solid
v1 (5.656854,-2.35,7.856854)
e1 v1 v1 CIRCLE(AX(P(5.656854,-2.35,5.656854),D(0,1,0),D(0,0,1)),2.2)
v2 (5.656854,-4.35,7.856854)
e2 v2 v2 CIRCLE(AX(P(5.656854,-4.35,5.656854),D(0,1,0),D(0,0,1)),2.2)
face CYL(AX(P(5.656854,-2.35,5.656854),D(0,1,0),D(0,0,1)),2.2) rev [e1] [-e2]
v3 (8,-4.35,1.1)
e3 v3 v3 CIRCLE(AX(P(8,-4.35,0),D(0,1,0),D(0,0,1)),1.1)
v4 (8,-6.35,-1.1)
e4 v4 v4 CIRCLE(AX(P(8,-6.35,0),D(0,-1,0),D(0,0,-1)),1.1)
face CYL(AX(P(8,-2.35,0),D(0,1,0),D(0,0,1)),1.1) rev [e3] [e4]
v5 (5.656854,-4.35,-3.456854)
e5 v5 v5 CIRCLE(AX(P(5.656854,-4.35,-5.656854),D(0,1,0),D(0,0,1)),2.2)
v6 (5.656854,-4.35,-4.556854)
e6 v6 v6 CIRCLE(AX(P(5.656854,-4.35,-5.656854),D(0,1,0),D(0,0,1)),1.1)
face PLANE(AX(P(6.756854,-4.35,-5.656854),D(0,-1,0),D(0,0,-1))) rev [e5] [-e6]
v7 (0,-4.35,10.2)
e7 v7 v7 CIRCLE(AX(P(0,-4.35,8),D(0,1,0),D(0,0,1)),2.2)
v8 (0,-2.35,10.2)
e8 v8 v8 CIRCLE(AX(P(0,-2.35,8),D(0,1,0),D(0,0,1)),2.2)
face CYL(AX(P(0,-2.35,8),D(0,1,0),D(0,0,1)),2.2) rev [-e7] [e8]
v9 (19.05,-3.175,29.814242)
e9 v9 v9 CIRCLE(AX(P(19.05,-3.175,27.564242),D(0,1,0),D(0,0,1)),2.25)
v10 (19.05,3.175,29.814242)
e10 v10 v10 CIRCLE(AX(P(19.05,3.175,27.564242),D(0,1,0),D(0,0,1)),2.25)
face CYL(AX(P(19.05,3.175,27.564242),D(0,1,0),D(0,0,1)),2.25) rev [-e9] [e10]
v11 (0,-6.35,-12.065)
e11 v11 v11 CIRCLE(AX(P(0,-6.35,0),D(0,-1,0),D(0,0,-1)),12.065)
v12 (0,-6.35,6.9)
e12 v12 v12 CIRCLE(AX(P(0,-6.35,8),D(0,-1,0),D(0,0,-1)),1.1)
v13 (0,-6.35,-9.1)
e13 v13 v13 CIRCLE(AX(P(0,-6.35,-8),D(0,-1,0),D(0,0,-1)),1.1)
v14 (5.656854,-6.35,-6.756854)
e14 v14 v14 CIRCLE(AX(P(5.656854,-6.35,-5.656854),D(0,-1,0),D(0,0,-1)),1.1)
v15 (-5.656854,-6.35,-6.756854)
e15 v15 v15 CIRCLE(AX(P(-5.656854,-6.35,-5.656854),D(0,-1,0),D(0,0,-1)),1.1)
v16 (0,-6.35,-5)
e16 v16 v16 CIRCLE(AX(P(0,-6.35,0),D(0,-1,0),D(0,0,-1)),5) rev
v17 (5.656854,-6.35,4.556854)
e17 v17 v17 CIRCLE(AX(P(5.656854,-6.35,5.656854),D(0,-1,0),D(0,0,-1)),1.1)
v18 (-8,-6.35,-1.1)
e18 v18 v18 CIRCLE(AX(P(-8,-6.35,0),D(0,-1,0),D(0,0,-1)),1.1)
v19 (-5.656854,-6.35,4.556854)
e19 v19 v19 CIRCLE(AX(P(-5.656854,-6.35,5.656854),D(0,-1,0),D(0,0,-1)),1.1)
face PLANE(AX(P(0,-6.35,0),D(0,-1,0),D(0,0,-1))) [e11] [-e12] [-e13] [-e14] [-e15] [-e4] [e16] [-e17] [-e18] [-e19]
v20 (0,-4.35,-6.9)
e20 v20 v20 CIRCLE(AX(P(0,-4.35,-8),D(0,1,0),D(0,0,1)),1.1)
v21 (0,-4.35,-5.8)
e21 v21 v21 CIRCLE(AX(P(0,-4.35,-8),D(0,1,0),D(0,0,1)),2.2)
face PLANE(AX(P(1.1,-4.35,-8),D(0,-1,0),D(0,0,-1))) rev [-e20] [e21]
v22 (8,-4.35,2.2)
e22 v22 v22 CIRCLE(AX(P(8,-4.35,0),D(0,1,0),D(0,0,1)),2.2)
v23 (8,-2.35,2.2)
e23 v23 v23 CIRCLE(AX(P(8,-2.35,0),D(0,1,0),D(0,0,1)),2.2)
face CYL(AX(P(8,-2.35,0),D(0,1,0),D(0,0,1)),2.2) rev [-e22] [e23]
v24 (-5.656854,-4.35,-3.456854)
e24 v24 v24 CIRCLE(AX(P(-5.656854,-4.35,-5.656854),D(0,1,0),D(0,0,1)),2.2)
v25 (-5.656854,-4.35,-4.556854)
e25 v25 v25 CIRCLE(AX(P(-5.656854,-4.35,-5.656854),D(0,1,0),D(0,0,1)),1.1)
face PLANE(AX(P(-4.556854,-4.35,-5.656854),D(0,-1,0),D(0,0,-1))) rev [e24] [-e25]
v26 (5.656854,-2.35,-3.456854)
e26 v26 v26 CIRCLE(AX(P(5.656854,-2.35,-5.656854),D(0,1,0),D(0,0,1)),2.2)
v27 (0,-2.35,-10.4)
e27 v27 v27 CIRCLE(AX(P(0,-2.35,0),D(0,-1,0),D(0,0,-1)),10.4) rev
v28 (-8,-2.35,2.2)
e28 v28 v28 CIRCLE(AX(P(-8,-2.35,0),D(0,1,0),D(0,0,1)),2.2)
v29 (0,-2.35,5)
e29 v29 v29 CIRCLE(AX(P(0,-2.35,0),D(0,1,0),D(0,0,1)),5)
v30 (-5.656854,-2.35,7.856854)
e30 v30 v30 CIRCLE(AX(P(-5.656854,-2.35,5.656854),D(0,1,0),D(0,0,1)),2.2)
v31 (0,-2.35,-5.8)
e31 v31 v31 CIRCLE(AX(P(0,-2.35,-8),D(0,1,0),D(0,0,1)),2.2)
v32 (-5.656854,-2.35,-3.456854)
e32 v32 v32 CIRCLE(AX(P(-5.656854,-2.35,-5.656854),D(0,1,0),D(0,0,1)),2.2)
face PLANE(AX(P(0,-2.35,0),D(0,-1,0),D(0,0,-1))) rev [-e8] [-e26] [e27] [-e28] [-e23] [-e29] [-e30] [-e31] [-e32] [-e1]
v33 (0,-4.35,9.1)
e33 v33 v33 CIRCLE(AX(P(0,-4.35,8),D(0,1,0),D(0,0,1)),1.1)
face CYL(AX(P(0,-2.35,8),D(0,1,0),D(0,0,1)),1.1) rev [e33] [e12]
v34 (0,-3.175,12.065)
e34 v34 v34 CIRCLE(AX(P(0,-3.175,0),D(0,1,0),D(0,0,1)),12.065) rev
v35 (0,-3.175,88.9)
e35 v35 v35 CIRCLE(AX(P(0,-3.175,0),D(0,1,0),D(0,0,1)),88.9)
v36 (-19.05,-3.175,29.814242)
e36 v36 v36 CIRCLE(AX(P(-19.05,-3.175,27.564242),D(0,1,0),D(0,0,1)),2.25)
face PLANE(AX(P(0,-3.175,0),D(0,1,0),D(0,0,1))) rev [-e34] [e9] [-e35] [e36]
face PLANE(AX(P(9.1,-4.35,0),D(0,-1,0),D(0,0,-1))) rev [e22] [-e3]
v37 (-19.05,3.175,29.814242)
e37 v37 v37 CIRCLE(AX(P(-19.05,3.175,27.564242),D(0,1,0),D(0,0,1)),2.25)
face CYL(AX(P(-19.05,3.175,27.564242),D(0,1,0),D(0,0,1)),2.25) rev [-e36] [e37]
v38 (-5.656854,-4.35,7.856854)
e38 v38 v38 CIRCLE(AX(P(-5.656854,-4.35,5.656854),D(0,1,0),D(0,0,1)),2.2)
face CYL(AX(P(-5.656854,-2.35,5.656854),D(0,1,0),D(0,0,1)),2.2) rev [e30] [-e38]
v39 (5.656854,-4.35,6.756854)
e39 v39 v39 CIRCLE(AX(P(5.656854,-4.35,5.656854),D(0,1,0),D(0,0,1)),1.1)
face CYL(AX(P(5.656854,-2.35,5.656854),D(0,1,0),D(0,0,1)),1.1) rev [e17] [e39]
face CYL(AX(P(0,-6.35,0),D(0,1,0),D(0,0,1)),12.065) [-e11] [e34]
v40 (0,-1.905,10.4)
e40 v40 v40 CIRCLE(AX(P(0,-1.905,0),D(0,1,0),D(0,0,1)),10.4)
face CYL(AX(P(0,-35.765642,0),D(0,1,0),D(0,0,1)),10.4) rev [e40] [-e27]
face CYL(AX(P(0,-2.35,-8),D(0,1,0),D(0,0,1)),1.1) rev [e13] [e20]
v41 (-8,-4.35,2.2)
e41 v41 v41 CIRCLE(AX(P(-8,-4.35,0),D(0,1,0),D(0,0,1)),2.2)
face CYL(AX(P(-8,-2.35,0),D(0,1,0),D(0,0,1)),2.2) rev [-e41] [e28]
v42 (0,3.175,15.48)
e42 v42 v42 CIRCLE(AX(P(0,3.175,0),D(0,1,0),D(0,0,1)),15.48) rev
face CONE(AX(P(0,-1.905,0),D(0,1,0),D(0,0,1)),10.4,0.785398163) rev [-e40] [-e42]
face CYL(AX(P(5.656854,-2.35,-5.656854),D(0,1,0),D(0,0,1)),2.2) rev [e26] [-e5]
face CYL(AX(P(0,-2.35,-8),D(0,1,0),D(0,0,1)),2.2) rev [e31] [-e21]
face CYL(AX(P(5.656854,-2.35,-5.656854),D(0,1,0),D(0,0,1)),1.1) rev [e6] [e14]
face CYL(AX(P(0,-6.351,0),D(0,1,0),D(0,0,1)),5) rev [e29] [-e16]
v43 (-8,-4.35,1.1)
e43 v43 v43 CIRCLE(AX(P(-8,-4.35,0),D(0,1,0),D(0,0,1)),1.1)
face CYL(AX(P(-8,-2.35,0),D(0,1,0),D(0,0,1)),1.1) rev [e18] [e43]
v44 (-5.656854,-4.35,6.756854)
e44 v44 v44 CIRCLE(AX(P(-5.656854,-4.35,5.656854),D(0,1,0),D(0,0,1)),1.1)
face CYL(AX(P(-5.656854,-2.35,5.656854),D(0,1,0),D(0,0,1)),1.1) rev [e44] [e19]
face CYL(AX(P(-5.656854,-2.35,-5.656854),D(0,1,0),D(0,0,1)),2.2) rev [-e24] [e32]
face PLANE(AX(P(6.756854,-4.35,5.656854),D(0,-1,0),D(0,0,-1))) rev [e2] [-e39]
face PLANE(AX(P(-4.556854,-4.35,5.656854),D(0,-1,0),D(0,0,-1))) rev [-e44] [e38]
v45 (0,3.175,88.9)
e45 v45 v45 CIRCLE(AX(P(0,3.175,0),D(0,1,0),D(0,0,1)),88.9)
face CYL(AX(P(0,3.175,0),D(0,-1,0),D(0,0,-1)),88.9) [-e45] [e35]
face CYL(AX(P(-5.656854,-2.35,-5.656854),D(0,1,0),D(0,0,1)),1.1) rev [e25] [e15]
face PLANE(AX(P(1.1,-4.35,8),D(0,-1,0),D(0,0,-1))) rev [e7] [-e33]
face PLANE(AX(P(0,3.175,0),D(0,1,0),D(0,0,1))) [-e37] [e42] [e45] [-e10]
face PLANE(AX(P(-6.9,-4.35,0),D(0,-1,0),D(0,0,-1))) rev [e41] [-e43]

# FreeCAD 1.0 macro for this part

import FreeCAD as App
import Part
import Sketcher

V = App.Vector
Q = App.Units.Quantity


def edges_at(feature, points):
    """Names of the edges that pass closest to the given points."""
    edges = feature.Shape.Edges
    near = lambda p: min(range(len(edges)), key=lambda i: edges[i].distToShape(Part.Vertex(*p))[0])
    return sorted({f"Edge{near(p) + 1}" for p in points})

doc = App.newDocument("Part")
body = doc.addObject("PartDesign::Body", "Body")

# Sketch on XZ plane
sketch1 = body.newObject("Sketcher::SketchObject", "Sketch")
sketch1.AttachmentSupport = (doc.getObject("XZ_Plane"), [""])
sketch1.MapMode = "FlatFace"
sketch1.addGeometry(Part.Circle(V(0, 0, 0), V(0, 0, 1), 89), False)
sketch1.addConstraint([
    Sketcher.Constraint("Coincident", 0, 3, -1, 1),
    Sketcher.Constraint("Diameter", 0, Q("177.8 mm")),
])
pad1 = body.newObject("PartDesign::Pad", "Pad")
pad1.Profile = sketch1
pad1.Length = 6.35
pad1.Midplane = True

# Sketch on XZ plane
sketch2 = body.newObject("Sketcher::SketchObject", "Sketch001")
sketch2.AttachmentSupport = (doc.getObject("XZ_Plane"), [""])
sketch2.MapMode = "FlatFace"
sketch2.AttachmentOffset = App.Placement(V(0, 0, 3.175), App.Rotation())
sketch2.addGeometry(Part.Circle(V(0, 0, 0), V(0, 0, 1), 12), False)
sketch2.addConstraint([
    Sketcher.Constraint("Coincident", 0, 3, -1, 1),
    Sketcher.Constraint("Diameter", 0, Q("24.13 mm")),
])
pad2 = body.newObject("PartDesign::Pad", "Pad001")
pad2.Profile = sketch2
pad2.Length = 3.175

# Sketch on XZ plane
sketch3 = body.newObject("Sketcher::SketchObject", "Sketch002")
sketch3.AttachmentSupport = (doc.getObject("XZ_Plane"), [""])
sketch3.MapMode = "FlatFace"
sketch3.AttachmentOffset = App.Placement(V(0, 0, -3.175), App.Rotation())
sketch3.addGeometry(Part.Circle(V(0, 0, 0), V(0, 0, 1), 10), False)
sketch3.addConstraint([
    Sketcher.Constraint("Coincident", 0, 3, -1, 1),
    Sketcher.Constraint("Diameter", 0, Q("20.8 mm")),
])
pocket1 = body.newObject("PartDesign::Pocket", "Pocket")
pocket1.Profile = sketch3
pocket1.Length = 5.525
pocket1.Reversed = True

# Sketch on XZ plane
sketch4 = body.newObject("Sketcher::SketchObject", "Sketch003")
sketch4.AttachmentSupport = (doc.getObject("XZ_Plane"), [""])
sketch4.MapMode = "FlatFace"
sketch4.AttachmentOffset = App.Placement(V(0, 0, 2.35), App.Rotation())
sketch4.addGeometry(Part.Circle(V(0, 0, 0), V(0, 0, 1), 5), False)
sketch4.addConstraint([
    Sketcher.Constraint("Coincident", 0, 3, -1, 1),
    Sketcher.Constraint("Diameter", 0, Q("10 mm")),
])
pocket2 = body.newObject("PartDesign::Pocket", "Pocket001")
pocket2.Profile = sketch4
pocket2.Length = 4
pocket2.Reversed = True

# Sketch on XZ plane
sketch5 = body.newObject("Sketcher::SketchObject", "Sketch004")
sketch5.AttachmentSupport = (doc.getObject("XZ_Plane"), [""])
sketch5.MapMode = "FlatFace"
sketch5.AttachmentOffset = App.Placement(V(0, 0, 2.35), App.Rotation())
sketch5.addGeometry([
    Part.Circle(V(-5.7, -5.7, 0), V(0, 0, 1), 1.1),  # 0
    Part.Circle(V(0, -8, 0), V(0, 0, 1), 1.1),  # 1
    Part.Circle(V(5.7, -5.7, 0), V(0, 0, 1), 1.1),  # 2
    Part.Circle(V(8, 0, 0), V(0, 0, 1), 1.1),  # 3
    Part.Circle(V(5.7, 5.7, 0), V(0, 0, 1), 1.1),  # 4
    Part.Circle(V(0, 8, 0), V(0, 0, 1), 1.1),  # 5
    Part.Circle(V(-5.7, 5.7, 0), V(0, 0, 1), 1.1),  # 6
    Part.Circle(V(-8, 0, 0), V(0, 0, 1), 1.1),  # 7
], False)
sketch5.addConstraint([
    Sketcher.Constraint("Equal", 0, 1),
    Sketcher.Constraint("Equal", 1, 2),
    Sketcher.Constraint("Equal", 2, 3),
    Sketcher.Constraint("Equal", 3, 4),
    Sketcher.Constraint("Equal", 4, 5),
    Sketcher.Constraint("Equal", 5, 6),
    Sketcher.Constraint("Equal", 6, 7),
    Sketcher.Constraint("Symmetric", 0, 3, 4, 3, -1, 1),
    Sketcher.Constraint("Symmetric", 1, 3, 5, 3, -1, 1),
    Sketcher.Constraint("Symmetric", 2, 3, 6, 3, -1, 1),
    Sketcher.Constraint("Symmetric", 3, 3, 7, 3, -1, 1),
    Sketcher.Constraint("Symmetric", 0, 3, 2, 3, -2),
    Sketcher.Constraint("PointOnObject", 1, 3, -2),
    Sketcher.Constraint("PointOnObject", 3, 3, -1),
    Sketcher.Constraint("Diameter", 0, Q("2.2 mm")),
    Sketcher.Constraint("DistanceY", 1, 3, -1, 1, Q("8 mm")),
    Sketcher.Constraint("DistanceX", -1, 1, 3, 3, Q("8 mm")),
    Sketcher.Constraint("DistanceX", 0, 3, 2, 3, Q("11.313709 mm")),
    Sketcher.Constraint("DistanceY", 2, 3, 4, 3, Q("11.313709 mm")),
])
doc.recompute()
hole = body.newObject("PartDesign::Hole", "Hole")
hole.Profile = sketch5
hole.ThreadType = "None"
hole.Diameter = 2.2
hole.DepthType = "Dimension"
hole.Depth = 6
hole.DrillPoint = "Angled"
hole.DrillPointAngle = 118
hole.HoleCutType = "Counterbore"
hole.HoleCutDiameter = 4.4
hole.HoleCutDepth = 2
hole.Reversed = True

# Sketch on XZ plane
sketch6 = body.newObject("Sketcher::SketchObject", "Sketch005")
sketch6.AttachmentSupport = (doc.getObject("XZ_Plane"), [""])
sketch6.MapMode = "FlatFace"
sketch6.AttachmentOffset = App.Placement(V(0, 0, -3.175), App.Rotation())
sketch6.addGeometry([
    Part.Circle(V(19.1, 27.6, 0), V(0, 0, 1), 2.2),
    Part.Circle(V(-19.1, 27.6, 0), V(0, 0, 1), 2.2),
], False)
sketch6.addConstraint([
    Sketcher.Constraint("Equal", 0, 1),
    Sketcher.Constraint("Symmetric", 0, 3, 1, 3, -2),
    Sketcher.Constraint("Diameter", 0, Q("4.5 mm")),
    Sketcher.Constraint("DistanceX", 1, 3, 0, 3, Q("38.1 mm")),
    Sketcher.Constraint("DistanceY", -1, 1, 0, 3, Q("27.564242 mm")),
])
doc.recompute()
hole2 = body.newObject("PartDesign::Hole", "Hole001")
hole2.Profile = sketch6
hole2.ThreadType = "None"
hole2.Diameter = 4.5
hole2.DepthType = "ThroughAll"
hole2.Reversed = True
doc.recompute()

chamfer = body.newObject("PartDesign::Chamfer", "Chamfer")
chamfer.Base = (hole2, edges_at(hole2, [(0, 3.175, -10.4)]))
chamfer.Size = 5.08

doc.recompute()
